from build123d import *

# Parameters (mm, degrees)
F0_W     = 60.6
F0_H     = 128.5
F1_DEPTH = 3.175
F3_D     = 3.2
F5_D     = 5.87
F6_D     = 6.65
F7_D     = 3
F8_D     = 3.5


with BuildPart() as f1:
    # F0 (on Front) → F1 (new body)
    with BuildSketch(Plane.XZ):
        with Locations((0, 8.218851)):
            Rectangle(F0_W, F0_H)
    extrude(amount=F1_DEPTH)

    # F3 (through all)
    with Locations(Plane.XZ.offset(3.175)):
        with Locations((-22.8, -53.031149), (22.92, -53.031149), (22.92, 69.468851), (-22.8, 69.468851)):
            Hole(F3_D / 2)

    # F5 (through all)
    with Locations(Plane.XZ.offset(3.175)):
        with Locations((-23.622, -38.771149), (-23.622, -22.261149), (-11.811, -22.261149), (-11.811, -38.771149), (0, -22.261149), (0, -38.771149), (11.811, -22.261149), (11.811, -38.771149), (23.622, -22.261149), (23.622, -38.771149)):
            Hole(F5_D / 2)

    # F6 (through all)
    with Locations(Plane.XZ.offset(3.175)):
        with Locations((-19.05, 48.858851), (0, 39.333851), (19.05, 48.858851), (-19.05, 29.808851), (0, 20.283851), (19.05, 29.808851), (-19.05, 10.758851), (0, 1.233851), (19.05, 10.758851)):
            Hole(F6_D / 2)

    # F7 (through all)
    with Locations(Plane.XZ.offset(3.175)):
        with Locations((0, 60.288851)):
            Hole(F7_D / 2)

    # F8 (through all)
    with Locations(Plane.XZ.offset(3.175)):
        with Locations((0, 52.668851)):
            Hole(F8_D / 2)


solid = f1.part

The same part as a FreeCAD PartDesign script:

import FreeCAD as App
import Part
import Sketcher
from FreeCAD import Vector
Q = App.Units.Quantity

doc = App.newDocument("Part")
body = doc.addObject("PartDesign::Body", "Body")

# Sketch on XZ plane
sketch1 = doc.addObject("Sketcher::SketchObject", "Sketch")
body.addObject(sketch1)
sketch1.AttachmentSupport = (doc.XZ_Plane, [""])
sketch1.MapMode = "FlatFace"
sketch1.addGeometry(Part.LineSegment(Vector(-30, 72, 0), Vector(-30, -56, 0)), False)
sketch1.addGeometry(Part.LineSegment(Vector(-30, -56, 0), Vector(30, -56, 0)), False)
sketch1.addGeometry(Part.LineSegment(Vector(30, -56, 0), Vector(30, 72, 0)), False)
sketch1.addGeometry(Part.LineSegment(Vector(30, 72, 0), Vector(-30, 72, 0)), False)
sketch1.addConstraint(Sketcher.Constraint("Coincident", 0, 2, 1, 1))
sketch1.addConstraint(Sketcher.Constraint("Coincident", 1, 2, 2, 1))
sketch1.addConstraint(Sketcher.Constraint("Coincident", 2, 2, 3, 1))
sketch1.addConstraint(Sketcher.Constraint("Coincident", 3, 2, 0, 1))
sketch1.addConstraint(Sketcher.Constraint("Vertical", 0))
sketch1.addConstraint(Sketcher.Constraint("Horizontal", 1))
sketch1.addConstraint(Sketcher.Constraint("Vertical", 2))
sketch1.addConstraint(Sketcher.Constraint("Horizontal", 3))
sketch1.addConstraint(Sketcher.Constraint("DistanceX", 1, 1, 1, 2, Q("60.6 mm")))
sketch1.addConstraint(Sketcher.Constraint("DistanceY", 0, 2, 0, 1, Q("128.5 mm")))
sketch1.addConstraint(Sketcher.Constraint("DistanceX", 0, 2, -1, 1, Q("30.3 mm")))
sketch1.addConstraint(Sketcher.Constraint("DistanceY", 0, 2, -1, 1, Q("56.031149 mm")))
pad1 = doc.addObject("PartDesign::Pad", "Pad")
body.addObject(pad1)
pad1.Profile = sketch1
pad1.Length = 3.175

# Sketch on XZ plane
sketch2 = doc.addObject("Sketcher::SketchObject", "Sketch001")
body.addObject(sketch2)
sketch2.AttachmentSupport = (doc.XZ_Plane, [""])
sketch2.MapMode = "FlatFace"
sketch2.AttachmentOffset = App.Placement(Vector(0, 0, 3.175), App.Rotation())
sketch2.addGeometry(Part.Circle(Vector(-22.8, -53, 0), Vector(0, 0, 1), 1.6), False)
sketch2.addGeometry(Part.Circle(Vector(22.9, -53, 0), Vector(0, 0, 1), 1.6), False)
sketch2.addGeometry(Part.Circle(Vector(22.9, 69.5, 0), Vector(0, 0, 1), 1.6), False)
sketch2.addGeometry(Part.Circle(Vector(-22.8, 69.5, 0), Vector(0, 0, 1), 1.6), False)
sketch2.addConstraint(Sketcher.Constraint("Equal", 0, 1))
sketch2.addConstraint(Sketcher.Constraint("Equal", 1, 2))
sketch2.addConstraint(Sketcher.Constraint("Equal", 2, 3))
sketch2.addConstraint(Sketcher.Constraint("Horizontal", 0, 3, 1, 3))
sketch2.addConstraint(Sketcher.Constraint("Horizontal", 2, 3, 3, 3))
sketch2.addConstraint(Sketcher.Constraint("Vertical", 1, 3, 2, 3))
sketch2.addConstraint(Sketcher.Constraint("Vertical", 0, 3, 3, 3))
sketch2.addConstraint(Sketcher.Constraint("Diameter", 0, Q("3.2 mm")))
sketch2.addConstraint(Sketcher.Constraint("DistanceX", 0, 3, -1, 1, Q("22.8 mm")))
sketch2.addConstraint(Sketcher.Constraint("DistanceY", 1, 3, 2, 3, Q("122.5 mm")))
sketch2.addConstraint(Sketcher.Constraint("DistanceX", -1, 1, 1, 3, Q("22.92 mm")))
sketch2.addConstraint(Sketcher.Constraint("DistanceY", 0, 3, -1, 1, Q("53.031149 mm")))
doc.recompute()
hole = doc.addObject("PartDesign::Hole", "Hole")
body.addObject(hole)
hole.Profile = sketch2
hole.ThreadType = "None"
hole.Diameter = 3.2
hole.DepthType = "ThroughAll"

# Sketch on XZ plane
sketch3 = doc.addObject("Sketcher::SketchObject", "Sketch002")
body.addObject(sketch3)
sketch3.AttachmentSupport = (doc.XZ_Plane, [""])
sketch3.MapMode = "FlatFace"
sketch3.AttachmentOffset = App.Placement(Vector(0, 0, 3.175), App.Rotation())
sketch3.addGeometry(Part.Circle(Vector(-23.6, -38.8, 0), Vector(0, 0, 1), 2.9), False)
sketch3.addGeometry(Part.Circle(Vector(-23.6, -22.3, 0), Vector(0, 0, 1), 2.9), False)
sketch3.addGeometry(Part.Circle(Vector(-11.8, -22.3, 0), Vector(0, 0, 1), 2.9), False)
sketch3.addGeometry(Part.Circle(Vector(-11.8, -38.8, 0), Vector(0, 0, 1), 2.9), False)
sketch3.addGeometry(Part.Circle(Vector(0, -22.3, 0), Vector(0, 0, 1), 2.9), False)
sketch3.addGeometry(Part.Circle(Vector(0, -38.8, 0), Vector(0, 0, 1), 2.9), False)
sketch3.addGeometry(Part.Circle(Vector(11.8, -22.3, 0), Vector(0, 0, 1), 2.9), False)
sketch3.addGeometry(Part.Circle(Vector(11.8, -38.8, 0), Vector(0, 0, 1), 2.9), False)
sketch3.addGeometry(Part.Circle(Vector(23.6, -22.3, 0), Vector(0, 0, 1), 2.9), False)
sketch3.addGeometry(Part.Circle(Vector(23.6, -38.8, 0), Vector(0, 0, 1), 2.9), False)
sketch3.addConstraint(Sketcher.Constraint("Equal", 0, 1))
sketch3.addConstraint(Sketcher.Constraint("Equal", 1, 2))
sketch3.addConstraint(Sketcher.Constraint("Equal", 2, 3))
sketch3.addConstraint(Sketcher.Constraint("Equal", 3, 4))
sketch3.addConstraint(Sketcher.Constraint("Equal", 4, 5))
sketch3.addConstraint(Sketcher.Constraint("Equal", 5, 6))
sketch3.addConstraint(Sketcher.Constraint("Equal", 6, 7))
sketch3.addConstraint(Sketcher.Constraint("Equal", 7, 8))
sketch3.addConstraint(Sketcher.Constraint("Equal", 8, 9))
sketch3.addConstraint(Sketcher.Constraint("Symmetric", 2, 3, 6, 3, -2))
sketch3.addConstraint(Sketcher.Constraint("Symmetric", 3, 3, 7, 3, -2))
sketch3.addConstraint(Sketcher.Constraint("Symmetric", 1, 3, 8, 3, -2))
sketch3.addConstraint(Sketcher.Constraint("Symmetric", 0, 3, 9, 3, -2))
sketch3.addConstraint(Sketcher.Constraint("PointOnObject", 4, 3, -2))
sketch3.addConstraint(Sketcher.Constraint("PointOnObject", 5, 3, -2))
sketch3.addConstraint(Sketcher.Constraint("Horizontal", 1, 3, 2, 3))
sketch3.addConstraint(Sketcher.Constraint("Horizontal", 0, 3, 3, 3))
sketch3.addConstraint(Sketcher.Constraint("Horizontal", 2, 3, 4, 3))
sketch3.addConstraint(Sketcher.Constraint("Horizontal", 3, 3, 5, 3))
sketch3.addConstraint(Sketcher.Constraint("Vertical", 0, 3, 1, 3))
sketch3.addConstraint(Sketcher.Constraint("Vertical", 2, 3, 3, 3))
sketch3.addConstraint(Sketcher.Constraint("Diameter", 0, Q("5.87 mm")))
sketch3.addConstraint(Sketcher.Constraint("DistanceY", 0, 3, 1, 3, Q("16.51 mm")))
sketch3.addConstraint(Sketcher.Constraint("DistanceX", 0, 3, -1, 1, Q("23.622 mm")))
sketch3.addConstraint(Sketcher.Constraint("DistanceX", 2, 3, -1, 1, Q("11.811 mm")))
sketch3.addConstraint(Sketcher.Constraint("DistanceY", 0, 3, -1, 1, Q("38.771149 mm")))
doc.recompute()
hole2 = doc.addObject("PartDesign::Hole", "Hole001")
body.addObject(hole2)
hole2.Profile = sketch3
hole2.ThreadType = "None"
hole2.Diameter = 5.87
hole2.DepthType = "ThroughAll"

# Sketch on XZ plane
sketch4 = doc.addObject("Sketcher::SketchObject", "Sketch003")
body.addObject(sketch4)
sketch4.AttachmentSupport = (doc.XZ_Plane, [""])
sketch4.MapMode = "FlatFace"
sketch4.AttachmentOffset = App.Placement(Vector(0, 0, 3.175), App.Rotation())
sketch4.addGeometry(Part.Circle(Vector(-19.1, 48.9, 0), Vector(0, 0, 1), 3.3), False)
sketch4.addGeometry(Part.Circle(Vector(0, 39.3, 0), Vector(0, 0, 1), 3.3), False)
sketch4.addGeometry(Part.Circle(Vector(19.1, 48.9, 0), Vector(0, 0, 1), 3.3), False)
sketch4.addGeometry(Part.Circle(Vector(-19.1, 29.8, 0), Vector(0, 0, 1), 3.3), False)
sketch4.addGeometry(Part.Circle(Vector(0, 20.3, 0), Vector(0, 0, 1), 3.3), False)
sketch4.addGeometry(Part.Circle(Vector(19.1, 29.8, 0), Vector(0, 0, 1), 3.3), False)
sketch4.addGeometry(Part.Circle(Vector(-19.1, 10.8, 0), Vector(0, 0, 1), 3.3), False)
sketch4.addGeometry(Part.Circle(Vector(0, 1.2, 0), Vector(0, 0, 1), 3.3), False)
sketch4.addGeometry(Part.Circle(Vector(19.1, 10.8, 0), Vector(0, 0, 1), 3.3), False)
sketch4.addConstraint(Sketcher.Constraint("Equal", 0, 1))
sketch4.addConstraint(Sketcher.Constraint("Equal", 1, 2))
sketch4.addConstraint(Sketcher.Constraint("Equal", 2, 3))
sketch4.addConstraint(Sketcher.Constraint("Equal", 3, 4))
sketch4.addConstraint(Sketcher.Constraint("Equal", 4, 5))
sketch4.addConstraint(Sketcher.Constraint("Equal", 5, 6))
sketch4.addConstraint(Sketcher.Constraint("Equal", 6, 7))
sketch4.addConstraint(Sketcher.Constraint("Equal", 7, 8))
sketch4.addConstraint(Sketcher.Constraint("Symmetric", 0, 3, 2, 3, -2))
sketch4.addConstraint(Sketcher.Constraint("Symmetric", 3, 3, 5, 3, -2))
sketch4.addConstraint(Sketcher.Constraint("Symmetric", 6, 3, 8, 3, -2))
sketch4.addConstraint(Sketcher.Constraint("PointOnObject", 1, 3, -2))
sketch4.addConstraint(Sketcher.Constraint("PointOnObject", 4, 3, -2))
sketch4.addConstraint(Sketcher.Constraint("PointOnObject", 7, 3, -2))
sketch4.addConstraint(Sketcher.Constraint("Vertical", 0, 3, 3, 3))
sketch4.addConstraint(Sketcher.Constraint("Vertical", 3, 3, 6, 3))
sketch4.addConstraint(Sketcher.Constraint("Diameter", 0, Q("6.65 mm")))
sketch4.addConstraint(Sketcher.Constraint("DistanceX", 0, 3, 2, 3, Q("38.1 mm")))
sketch4.addConstraint(Sketcher.Constraint("DistanceY", 6, 3, 0, 3, Q("38.1 mm")))
sketch4.addConstraint(Sketcher.Constraint("DistanceY", 7, 3, 1, 3, Q("38.1 mm")))
sketch4.addConstraint(Sketcher.Constraint("DistanceY", 3, 3, 0, 3, Q("19.05 mm")))
sketch4.addConstraint(Sketcher.Constraint("DistanceY", 4, 3, 1, 3, Q("19.05 mm")))
sketch4.addConstraint(Sketcher.Constraint("DistanceY", 1, 3, 0, 3, Q("9.525 mm")))
sketch4.addConstraint(Sketcher.Constraint("DistanceY", -1, 1, 0, 3, Q("48.858851 mm")))
doc.recompute()
hole3 = doc.addObject("PartDesign::Hole", "Hole002")
body.addObject(hole3)
hole3.Profile = sketch4
hole3.ThreadType = "None"
hole3.Diameter = 6.65
hole3.DepthType = "ThroughAll"

# Sketch on XZ plane
sketch5 = doc.addObject("Sketcher::SketchObject", "Sketch004")
body.addObject(sketch5)
sketch5.AttachmentSupport = (doc.XZ_Plane, [""])
sketch5.MapMode = "FlatFace"
sketch5.AttachmentOffset = App.Placement(Vector(0, 0, 3.175), App.Rotation())
sketch5.addGeometry(Part.Circle(Vector(0, 60.3, 0), Vector(0, 0, 1), 1.5), False)
sketch5.addConstraint(Sketcher.Constraint("PointOnObject", 0, 3, -2))
sketch5.addConstraint(Sketcher.Constraint("Diameter", 0, Q("3 mm")))
sketch5.addConstraint(Sketcher.Constraint("DistanceY", -1, 1, 0, 3, Q("60.288851 mm")))
doc.recompute()
hole4 = doc.addObject("PartDesign::Hole", "Hole003")
body.addObject(hole4)
hole4.Profile = sketch5
hole4.ThreadType = "None"
hole4.Diameter = 3
hole4.DepthType = "ThroughAll"

# Sketch on XZ plane
sketch6 = doc.addObject("Sketcher::SketchObject", "Sketch005")
body.addObject(sketch6)
sketch6.AttachmentSupport = (doc.XZ_Plane, [""])
sketch6.MapMode = "FlatFace"
sketch6.AttachmentOffset = App.Placement(Vector(0, 0, 3.175), App.Rotation())
sketch6.addGeometry(Part.Circle(Vector(0, 52.7, 0), Vector(0, 0, 1), 1.8), False)
sketch6.addConstraint(Sketcher.Constraint("PointOnObject", 0, 3, -2))
sketch6.addConstraint(Sketcher.Constraint("Diameter", 0, Q("3.5 mm")))
sketch6.addConstraint(Sketcher.Constraint("DistanceY", -1, 1, 0, 3, Q("52.668851 mm")))
doc.recompute()
hole5 = doc.addObject("PartDesign::Hole", "Hole004")
body.addObject(hole5)
hole5.Profile = sketch6
hole5.ThreadType = "None"
hole5.Diameter = 3.5
hole5.DepthType = "ThroughAll"

doc.recompute()
